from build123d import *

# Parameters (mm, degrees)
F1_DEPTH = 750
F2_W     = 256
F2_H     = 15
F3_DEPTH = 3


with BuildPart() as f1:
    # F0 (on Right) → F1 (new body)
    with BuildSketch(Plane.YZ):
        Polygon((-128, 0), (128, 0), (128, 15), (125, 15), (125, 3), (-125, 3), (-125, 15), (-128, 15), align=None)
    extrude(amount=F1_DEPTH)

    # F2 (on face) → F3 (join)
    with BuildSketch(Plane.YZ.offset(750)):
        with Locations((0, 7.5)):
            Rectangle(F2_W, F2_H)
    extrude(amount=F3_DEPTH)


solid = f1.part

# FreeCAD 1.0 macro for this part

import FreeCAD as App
import Part
import Sketcher
from FreeCAD import Vector


def add_polygon(sketch, points):
    """Adds a closed chain of lines whose ends are joined by coincident constraints."""
    first, n = sketch.GeometryCount, len(points)
    for a, b in zip(points, points[1:] + points[:1]):
        sketch.addGeometry(Part.LineSegment(App.Vector(*a, 0), App.Vector(*b, 0)), False)
    for i in range(n):
        sketch.addConstraint(Sketcher.Constraint("Coincident", first + i, 2, first + (i + 1) % n, 1))

doc = App.newDocument("Part")
body = doc.addObject("PartDesign::Body", "Body")

sketch1 = doc.addObject("Sketcher::SketchObject", "Sketch")
body.addObject(sketch1)
sketch1.AttachmentSupport = (doc.YZ_Plane, [""])
sketch1.MapMode = "FlatFace"
add_polygon(sketch1, [(-128, 0), (128, 0), (128, 15), (125, 15), (125, 3), (-125, 3), (-125, 15), (-128, 15)])
sketch1.addConstraint(Sketcher.Constraint("Horizontal", 0))
sketch1.addConstraint(Sketcher.Constraint("Vertical", 1))
sketch1.addConstraint(Sketcher.Constraint("Horizontal", 2))
sketch1.addConstraint(Sketcher.Constraint("Vertical", 3))
sketch1.addConstraint(Sketcher.Constraint("Horizontal", 4))
sketch1.addConstraint(Sketcher.Constraint("Vertical", 5))
sketch1.addConstraint(Sketcher.Constraint("Horizontal", 6))
sketch1.addConstraint(Sketcher.Constraint("Vertical", 7))
sketch1.addConstraint(Sketcher.Constraint("Symmetric", 0, 2, 7, 2, -1, 1))
sketch1.addConstraint(Sketcher.Constraint("Symmetric", 2, 2, 5, 2, -2))
sketch1.addConstraint(Sketcher.Constraint("DistanceX", 0, 1, 0, 2, 256.0))
sketch1.addConstraint(Sketcher.Constraint("DistanceX", 2, 2, 2, 1, 3.0))
sketch1.addConstraint(Sketcher.Constraint("DistanceY", 1, 1, 1, 2, 15.0))
sketch1.addConstraint(Sketcher.Constraint("DistanceY", 3, 2, 3, 1, 12.0))
pad1 = doc.addObject("PartDesign::Pad", "Pad")
body.addObject(pad1)
pad1.Profile = sketch1
pad1.Length = 750

sketch2 = doc.addObject("Sketcher::SketchObject", "Sketch001")
body.addObject(sketch2)
sketch2.AttachmentSupport = (doc.YZ_Plane, [""])
sketch2.MapMode = "FlatFace"
sketch2.AttachmentOffset = App.Placement(Vector(0, 0, 750), App.Rotation())
add_polygon(sketch2, [(-128, 15), (-128, 0), (128, 0), (128, 15)])
sketch2.addConstraint(Sketcher.Constraint("Vertical", 0))
sketch2.addConstraint(Sketcher.Constraint("Horizontal", 1))
sketch2.addConstraint(Sketcher.Constraint("Vertical", 2))
sketch2.addConstraint(Sketcher.Constraint("Horizontal", 3))
sketch2.addConstraint(Sketcher.Constraint("Symmetric", 0, 2, 1, 2, -1, 1))
sketch2.addConstraint(Sketcher.Constraint("DistanceX", 1, 1, 1, 2, 256.0))
sketch2.addConstraint(Sketcher.Constraint("DistanceY", 0, 2, 0, 1, 15.0))
pad2 = doc.addObject("PartDesign::Pad", "Pad001")
body.addObject(pad2)
pad2.Profile = sketch2
pad2.Length = 3

doc.recompute()
